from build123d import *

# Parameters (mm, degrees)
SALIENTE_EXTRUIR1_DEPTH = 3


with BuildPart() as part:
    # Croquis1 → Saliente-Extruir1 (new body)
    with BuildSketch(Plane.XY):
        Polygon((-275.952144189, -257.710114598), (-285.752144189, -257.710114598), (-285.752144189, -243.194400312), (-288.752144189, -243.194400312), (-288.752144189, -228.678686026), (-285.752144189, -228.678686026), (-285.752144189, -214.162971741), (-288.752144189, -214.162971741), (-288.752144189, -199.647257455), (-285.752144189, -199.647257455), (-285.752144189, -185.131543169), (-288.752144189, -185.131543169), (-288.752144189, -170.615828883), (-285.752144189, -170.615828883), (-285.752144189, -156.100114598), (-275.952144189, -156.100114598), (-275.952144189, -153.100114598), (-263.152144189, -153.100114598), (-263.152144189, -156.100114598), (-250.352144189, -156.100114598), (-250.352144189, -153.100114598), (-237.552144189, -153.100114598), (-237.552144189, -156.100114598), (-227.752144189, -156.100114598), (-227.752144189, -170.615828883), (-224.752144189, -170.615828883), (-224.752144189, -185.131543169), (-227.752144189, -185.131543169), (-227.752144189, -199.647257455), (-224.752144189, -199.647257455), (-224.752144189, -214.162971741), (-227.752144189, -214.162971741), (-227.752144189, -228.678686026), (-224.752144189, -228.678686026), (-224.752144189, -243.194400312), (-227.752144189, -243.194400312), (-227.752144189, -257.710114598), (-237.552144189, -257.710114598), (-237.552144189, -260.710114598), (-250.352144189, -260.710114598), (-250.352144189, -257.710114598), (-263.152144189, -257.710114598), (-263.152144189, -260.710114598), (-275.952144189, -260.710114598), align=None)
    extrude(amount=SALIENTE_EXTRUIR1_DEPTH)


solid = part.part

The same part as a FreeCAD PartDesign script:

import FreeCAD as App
import Part
import Sketcher
from FreeCAD import Vector

doc = App.newDocument("Part")
body = doc.addObject("PartDesign::Body", "Body")

# Sketch on XY plane
sketch1 = doc.addObject("Sketcher::SketchObject", "Sketch")
body.addObject(sketch1)
sketch1.AttachmentSupport = (doc.XY_Plane, [""])
sketch1.MapMode = "FlatFace"
sketch1.addGeometry([
    Part.LineSegment(Vector(-285.8, -257.7, 0), Vector(-276, -257.7, 0)),  # 0
    Part.LineSegment(Vector(-276, -257.7, 0), Vector(-276, -260.7, 0)),  # 1
    Part.LineSegment(Vector(-276, -260.7, 0), Vector(-263.2, -260.7, 0)),  # 2
    Part.LineSegment(Vector(-263.2, -260.7, 0), Vector(-263.2, -257.7, 0)),  # 3
    Part.LineSegment(Vector(-263.2, -257.7, 0), Vector(-250.4, -257.7, 0)),  # 4
    Part.LineSegment(Vector(-250.4, -257.7, 0), Vector(-250.4, -260.7, 0)),  # 5
    Part.LineSegment(Vector(-250.4, -260.7, 0), Vector(-237.6, -260.7, 0)),  # 6
    Part.LineSegment(Vector(-237.6, -260.7, 0), Vector(-237.6, -257.7, 0)),  # 7
    Part.LineSegment(Vector(-237.6, -257.7, 0), Vector(-227.8, -257.7, 0)),  # 8
    Part.LineSegment(Vector(-227.8, -257.7, 0), Vector(-227.8, -243.2, 0)),  # 9
    Part.LineSegment(Vector(-227.8, -243.2, 0), Vector(-224.8, -243.2, 0)),  # 10
    Part.LineSegment(Vector(-224.8, -243.2, 0), Vector(-224.8, -228.7, 0)),  # 11
    Part.LineSegment(Vector(-224.8, -228.7, 0), Vector(-227.8, -228.7, 0)),  # 12
    Part.LineSegment(Vector(-227.8, -228.7, 0), Vector(-227.8, -214.2, 0)),  # 13
    Part.LineSegment(Vector(-227.8, -214.2, 0), Vector(-224.8, -214.2, 0)),  # 14
    Part.LineSegment(Vector(-224.8, -214.2, 0), Vector(-224.8, -199.6, 0)),  # 15
    Part.LineSegment(Vector(-224.8, -199.6, 0), Vector(-227.8, -199.6, 0)),  # 16
    Part.LineSegment(Vector(-227.8, -199.6, 0), Vector(-227.8, -185.1, 0)),  # 17
    Part.LineSegment(Vector(-227.8, -185.1, 0), Vector(-224.8, -185.1, 0)),  # 18
    Part.LineSegment(Vector(-224.8, -185.1, 0), Vector(-224.8, -170.6, 0)),  # 19
    Part.LineSegment(Vector(-224.8, -170.6, 0), Vector(-227.8, -170.6, 0)),  # 20
    Part.LineSegment(Vector(-227.8, -170.6, 0), Vector(-227.8, -156.1, 0)),  # 21
    Part.LineSegment(Vector(-227.8, -156.1, 0), Vector(-237.6, -156.1, 0)),  # 22
    Part.LineSegment(Vector(-237.6, -156.1, 0), Vector(-237.6, -153.1, 0)),  # 23
    Part.LineSegment(Vector(-237.6, -153.1, 0), Vector(-250.4, -153.1, 0)),  # 24
    Part.LineSegment(Vector(-250.4, -153.1, 0), Vector(-250.4, -156.1, 0)),  # 25
    Part.LineSegment(Vector(-250.4, -156.1, 0), Vector(-263.2, -156.1, 0)),  # 26
    Part.LineSegment(Vector(-263.2, -156.1, 0), Vector(-263.2, -153.1, 0)),  # 27
    Part.LineSegment(Vector(-263.2, -153.1, 0), Vector(-276, -153.1, 0)),  # 28
    Part.LineSegment(Vector(-276, -153.1, 0), Vector(-276, -156.1, 0)),  # 29
    Part.LineSegment(Vector(-276, -156.1, 0), Vector(-285.8, -156.1, 0)),  # 30
    Part.LineSegment(Vector(-285.8, -156.1, 0), Vector(-285.8, -170.6, 0)),  # 31
    Part.LineSegment(Vector(-285.8, -170.6, 0), Vector(-288.8, -170.6, 0)),  # 32
    Part.LineSegment(Vector(-288.8, -170.6, 0), Vector(-288.8, -185.1, 0)),  # 33
    Part.LineSegment(Vector(-288.8, -185.1, 0), Vector(-285.8, -185.1, 0)),  # 34
    Part.LineSegment(Vector(-285.8, -185.1, 0), Vector(-285.8, -199.6, 0)),  # 35
    Part.LineSegment(Vector(-285.8, -199.6, 0), Vector(-288.8, -199.6, 0)),  # 36
    Part.LineSegment(Vector(-288.8, -199.6, 0), Vector(-288.8, -214.2, 0)),  # 37
    Part.LineSegment(Vector(-288.8, -214.2, 0), Vector(-285.8, -214.2, 0)),  # 38
    Part.LineSegment(Vector(-285.8, -214.2, 0), Vector(-285.8, -228.7, 0)),  # 39
    Part.LineSegment(Vector(-285.8, -228.7, 0), Vector(-288.8, -228.7, 0)),  # 40
    Part.LineSegment(Vector(-288.8, -228.7, 0), Vector(-288.8, -243.2, 0)),  # 41
    Part.LineSegment(Vector(-288.8, -243.2, 0), Vector(-285.8, -243.2, 0)),  # 42
    Part.LineSegment(Vector(-285.8, -243.2, 0), Vector(-285.8, -257.7, 0)),  # 43
], False)
sketch1.addConstraint([
    Sketcher.Constraint("Coincident", 0, 2, 1, 1),
    Sketcher.Constraint("Coincident", 1, 2, 2, 1),
    Sketcher.Constraint("Coincident", 2, 2, 3, 1),
    Sketcher.Constraint("Coincident", 3, 2, 4, 1),
    Sketcher.Constraint("Coincident", 4, 2, 5, 1),
    Sketcher.Constraint("Coincident", 5, 2, 6, 1),
    Sketcher.Constraint("Coincident", 6, 2, 7, 1),
    Sketcher.Constraint("Coincident", 7, 2, 8, 1),
    Sketcher.Constraint("Coincident", 8, 2, 9, 1),
    Sketcher.Constraint("Coincident", 9, 2, 10, 1),
    Sketcher.Constraint("Coincident", 10, 2, 11, 1),
    Sketcher.Constraint("Coincident", 11, 2, 12, 1),
    Sketcher.Constraint("Coincident", 12, 2, 13, 1),
    Sketcher.Constraint("Coincident", 13, 2, 14, 1),
    Sketcher.Constraint("Coincident", 14, 2, 15, 1),
    Sketcher.Constraint("Coincident", 15, 2, 16, 1),
    Sketcher.Constraint("Coincident", 16, 2, 17, 1),
    Sketcher.Constraint("Coincident", 17, 2, 18, 1),
    Sketcher.Constraint("Coincident", 18, 2, 19, 1),
    Sketcher.Constraint("Coincident", 19, 2, 20, 1),
    Sketcher.Constraint("Coincident", 20, 2, 21, 1),
    Sketcher.Constraint("Coincident", 21, 2, 22, 1),
    Sketcher.Constraint("Coincident", 22, 2, 23, 1),
    Sketcher.Constraint("Coincident", 23, 2, 24, 1),
    Sketcher.Constraint("Coincident", 24, 2, 25, 1),
    Sketcher.Constraint("Coincident", 25, 2, 26, 1),
    Sketcher.Constraint("Coincident", 26, 2, 27, 1),
    Sketcher.Constraint("Coincident", 27, 2, 28, 1),
    Sketcher.Constraint("Coincident", 28, 2, 29, 1),
    Sketcher.Constraint("Coincident", 29, 2, 30, 1),
    Sketcher.Constraint("Coincident", 30, 2, 31, 1),
    Sketcher.Constraint("Coincident", 31, 2, 32, 1),
    Sketcher.Constraint("Coincident", 32, 2, 33, 1),
    Sketcher.Constraint("Coincident", 33, 2, 34, 1),
    Sketcher.Constraint("Coincident", 34, 2, 35, 1),
    Sketcher.Constraint("Coincident", 35, 2, 36, 1),
    Sketcher.Constraint("Coincident", 36, 2, 37, 1),
    Sketcher.Constraint("Coincident", 37, 2, 38, 1),
    Sketcher.Constraint("Coincident", 38, 2, 39, 1),
    Sketcher.Constraint("Coincident", 39, 2, 40, 1),
    Sketcher.Constraint("Coincident", 40, 2, 41, 1),
    Sketcher.Constraint("Coincident", 41, 2, 42, 1),
    Sketcher.Constraint("Coincident", 42, 2, 43, 1),
    Sketcher.Constraint("Coincident", 43, 2, 0, 1),
    Sketcher.Constraint("Horizontal", 0),
    Sketcher.Constraint("Vertical", 1),
    Sketcher.Constraint("Horizontal", 2),
    Sketcher.Constraint("Vertical", 3),
    Sketcher.Constraint("Horizontal", 4),
    Sketcher.Constraint("Vertical", 5),
    Sketcher.Constraint("Horizontal", 6),
    Sketcher.Constraint("Vertical", 7),
    Sketcher.Constraint("Horizontal", 8),
    Sketcher.Constraint("Vertical", 9),
    Sketcher.Constraint("Horizontal", 10),
    Sketcher.Constraint("Vertical", 11),
    Sketcher.Constraint("Horizontal", 12),
    Sketcher.Constraint("Vertical", 13),
    Sketcher.Constraint("Horizontal", 14),
    Sketcher.Constraint("Vertical", 15),
    Sketcher.Constraint("Horizontal", 16),
    Sketcher.Constraint("Vertical", 17),
    Sketcher.Constraint("Horizontal", 18),
    Sketcher.Constraint("Vertical", 19),
    Sketcher.Constraint("Horizontal", 20),
    Sketcher.Constraint("Vertical", 21),
    Sketcher.Constraint("Horizontal", 22),
    Sketcher.Constraint("Vertical", 23),
    Sketcher.Constraint("Horizontal", 24),
    Sketcher.Constraint("Vertical", 25),
    Sketcher.Constraint("Horizontal", 26),
    Sketcher.Constraint("Vertical", 27),
    Sketcher.Constraint("Horizontal", 28),
    Sketcher.Constraint("Vertical", 29),
    Sketcher.Constraint("Horizontal", 30),
    Sketcher.Constraint("Vertical", 31),
    Sketcher.Constraint("Horizontal", 32),
    Sketcher.Constraint("Vertical", 33),
    Sketcher.Constraint("Horizontal", 34),
    Sketcher.Constraint("Vertical", 35),
    Sketcher.Constraint("Horizontal", 36),
    Sketcher.Constraint("Vertical", 37),
    Sketcher.Constraint("Horizontal", 38),
    Sketcher.Constraint("Vertical", 39),
    Sketcher.Constraint("Horizontal", 40),
    Sketcher.Constraint("Vertical", 41),
    Sketcher.Constraint("Horizontal", 42),
    Sketcher.Constraint("Vertical", 43),
    Sketcher.Constraint("Horizontal", 0, 2, 3, 2),
    Sketcher.Constraint("Horizontal", 2, 2, 5, 2),
    Sketcher.Constraint("Horizontal", 4, 2, 7, 2),
    Sketcher.Constraint("Horizontal", 22, 2, 25, 2),
    Sketcher.Constraint("Horizontal", 24, 2, 27, 2),
    Sketcher.Constraint("Horizontal", 26, 2, 29, 2),
    Sketcher.Constraint("Horizontal", 20, 2, 31, 2),
    Sketcher.Constraint("Horizontal", 18, 2, 33, 2),
    Sketcher.Constraint("Horizontal", 16, 2, 35, 2),
    Sketcher.Constraint("Horizontal", 14, 2, 37, 2),
    Sketcher.Constraint("Horizontal", 12, 2, 39, 2),
    Sketcher.Constraint("Horizontal", 10, 2, 41, 2),
    Sketcher.Constraint("Vertical", 9, 2, 12, 2),
    Sketcher.Constraint("Vertical", 11, 2, 14, 2),
    Sketcher.Constraint("Vertical", 13, 2, 16, 2),
    Sketcher.Constraint("Vertical", 15, 2, 18, 2),
    Sketcher.Constraint("Vertical", 17, 2, 20, 2),
    Sketcher.Constraint("Vertical", 7, 2, 22, 2),
    Sketcher.Constraint("Vertical", 5, 2, 24, 2),
    Sketcher.Constraint("Vertical", 3, 2, 26, 2),
    Sketcher.Constraint("Vertical", 1, 2, 28, 2),
    Sketcher.Constraint("Vertical", 31, 2, 34, 2),
    Sketcher.Constraint("Vertical", 33, 2, 36, 2),
    Sketcher.Constraint("Vertical", 35, 2, 38, 2),
    Sketcher.Constraint("Vertical", 37, 2, 40, 2),
    Sketcher.Constraint("Vertical", 39, 2, 42, 2),
    Sketcher.Constraint("Equal", 2, 4),
    Sketcher.Constraint("Equal", 4, 6),
    Sketcher.Constraint("Equal", 0, 8),
    Sketcher.Constraint("Equal", 20, 32),
    Sketcher.Constraint("Equal", 42, 1),
    Sketcher.Constraint("Equal", 9, 11),
    Sketcher.Constraint("Equal", 11, 13),
    Sketcher.Constraint("Equal", 13, 15),
    Sketcher.Constraint("Equal", 15, 17),
    Sketcher.Constraint("Equal", 17, 19),
    Sketcher.Constraint("Equal", 19, 21),
    Sketcher.Constraint("Equal", 7, 23),
    Sketcher.Constraint("DistanceX", 10, 1, 10, 2, 3.0),
    Sketcher.Constraint("DistanceX", 0, 1, 0, 2, 9.8),
    Sketcher.Constraint("DistanceX", 2, 1, 2, 2, 12.8),
    Sketcher.Constraint("DistanceY", 9, 2, -1, 1, 243.1944),
    Sketcher.Constraint("DistanceY", 9, 1, 9, 2, 14.515714),
    Sketcher.Constraint("DistanceX", 0, 2, -1, 1, 275.952144),
])
pad1 = doc.addObject("PartDesign::Pad", "Pad")
body.addObject(pad1)
pad1.Profile = sketch1
pad1.Length = 3

doc.recompute()
